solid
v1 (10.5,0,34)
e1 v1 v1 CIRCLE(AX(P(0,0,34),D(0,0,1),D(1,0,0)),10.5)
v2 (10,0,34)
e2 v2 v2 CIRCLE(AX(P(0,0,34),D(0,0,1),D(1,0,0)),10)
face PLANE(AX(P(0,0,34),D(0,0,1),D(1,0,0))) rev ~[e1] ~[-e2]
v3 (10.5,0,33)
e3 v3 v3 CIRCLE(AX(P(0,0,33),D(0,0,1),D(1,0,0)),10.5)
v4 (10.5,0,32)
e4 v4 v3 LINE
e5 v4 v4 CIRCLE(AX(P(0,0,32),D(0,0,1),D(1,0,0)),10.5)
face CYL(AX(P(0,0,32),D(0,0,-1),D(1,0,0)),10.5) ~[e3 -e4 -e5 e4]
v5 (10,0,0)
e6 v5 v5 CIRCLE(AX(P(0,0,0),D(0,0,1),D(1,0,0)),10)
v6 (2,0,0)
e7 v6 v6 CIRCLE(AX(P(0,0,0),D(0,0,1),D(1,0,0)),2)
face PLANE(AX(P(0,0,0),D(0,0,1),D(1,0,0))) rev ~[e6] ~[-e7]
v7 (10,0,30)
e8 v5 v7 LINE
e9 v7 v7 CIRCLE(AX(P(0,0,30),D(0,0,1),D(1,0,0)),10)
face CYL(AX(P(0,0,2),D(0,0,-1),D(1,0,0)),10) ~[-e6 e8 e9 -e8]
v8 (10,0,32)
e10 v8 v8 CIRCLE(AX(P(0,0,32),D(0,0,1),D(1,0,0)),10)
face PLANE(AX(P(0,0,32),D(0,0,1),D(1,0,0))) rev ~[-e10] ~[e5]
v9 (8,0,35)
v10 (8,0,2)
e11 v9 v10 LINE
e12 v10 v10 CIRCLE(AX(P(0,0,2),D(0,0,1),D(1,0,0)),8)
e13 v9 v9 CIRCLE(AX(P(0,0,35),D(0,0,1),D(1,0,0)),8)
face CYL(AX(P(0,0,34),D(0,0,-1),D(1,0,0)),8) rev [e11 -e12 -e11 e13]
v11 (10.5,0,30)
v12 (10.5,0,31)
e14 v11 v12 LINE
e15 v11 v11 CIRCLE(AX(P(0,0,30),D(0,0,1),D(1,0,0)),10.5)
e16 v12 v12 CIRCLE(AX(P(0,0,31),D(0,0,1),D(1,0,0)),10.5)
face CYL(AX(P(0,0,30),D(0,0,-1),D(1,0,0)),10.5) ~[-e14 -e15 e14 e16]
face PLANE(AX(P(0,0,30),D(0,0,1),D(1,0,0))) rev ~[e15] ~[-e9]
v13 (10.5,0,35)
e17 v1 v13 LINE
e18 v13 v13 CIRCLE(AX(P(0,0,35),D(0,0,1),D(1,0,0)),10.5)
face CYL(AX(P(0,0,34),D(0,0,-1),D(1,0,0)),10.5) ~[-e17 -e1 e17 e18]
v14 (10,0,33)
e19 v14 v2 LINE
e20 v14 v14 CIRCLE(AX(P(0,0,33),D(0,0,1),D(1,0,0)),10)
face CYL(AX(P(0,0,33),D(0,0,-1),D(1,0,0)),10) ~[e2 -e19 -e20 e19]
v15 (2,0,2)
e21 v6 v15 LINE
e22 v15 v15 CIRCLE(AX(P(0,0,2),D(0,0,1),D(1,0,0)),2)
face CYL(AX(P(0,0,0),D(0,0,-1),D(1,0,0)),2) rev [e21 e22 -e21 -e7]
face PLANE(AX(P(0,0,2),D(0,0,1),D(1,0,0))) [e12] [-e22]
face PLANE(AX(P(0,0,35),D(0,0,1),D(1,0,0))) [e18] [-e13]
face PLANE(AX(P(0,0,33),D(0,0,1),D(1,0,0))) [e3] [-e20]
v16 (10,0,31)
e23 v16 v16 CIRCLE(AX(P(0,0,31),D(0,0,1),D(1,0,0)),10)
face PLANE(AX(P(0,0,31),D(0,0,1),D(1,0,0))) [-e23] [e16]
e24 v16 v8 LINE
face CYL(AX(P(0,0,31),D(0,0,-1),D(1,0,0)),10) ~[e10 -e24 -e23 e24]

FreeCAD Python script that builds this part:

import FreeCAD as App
import Part
import Sketcher

doc = App.newDocument("Part")
params = doc.addObject("Spreadsheet::Sheet", "Params")
for row, (alias, value) in enumerate([
    ("sketch1_diameter", "20 mm"),
    ("sketch1_diameter2", "4 mm"),
    ("pad1_length", "2 mm"),
    ("sketch2_diameter", "20 mm"),
    ("sketch2_diameter2", "16 mm"),
    ("pad2_length", "28 mm"),
    ("sketch3_diameter", "21 mm"),
    ("sketch3_diameter2", "16 mm"),
    ("pad3_length", "1 mm"),
    ("sketch4_diameter", "20 mm"),
    ("sketch4_diameter2", "16 mm"),
    ("pad4_length", "1 mm"),
    ("sketch5_diameter", "21 mm"),
    ("sketch5_diameter2", "16 mm"),
    ("pad5_length", "1 mm"),
    ("sketch6_diameter", "20 mm"),
    ("sketch6_diameter2", "16 mm"),
    ("pad6_length", "1 mm"),
    ("sketch7_diameter", "21 mm"),
    ("sketch7_diameter2", "16 mm"),
    ("pad7_length", "1 mm"),
], start=1):
    params.set(f"A{row}", alias)
    params.set(f"B{row}", "=" + value)
    params.setAlias(f"B{row}", alias)

body = doc.addObject("PartDesign::Body", "Body")

sketch1 = body.newObject("Sketcher::SketchObject", "Sketch")
sketch1.AttachmentSupport = (doc.getObject("XY_Plane"), [""])
sketch1.MapMode = "FlatFace"
sketch1.addGeometry([
    Part.Circle(App.Vector(0, 0, 0), App.Vector(0, 0, 1), 10),
    Part.Circle(App.Vector(0, 0, 0), App.Vector(0, 0, 1), 2),
], False)
sketch1.addConstraint([
    Sketcher.Constraint("Coincident", 0, 3, -1, 1),
    Sketcher.Constraint("Coincident", 1, 3, -1, 1),
    Sketcher.Constraint("Diameter", 0, 20.0),
    Sketcher.Constraint("Diameter", 1, 4.0),
])
sketch1.setExpression("Constraints[2]", "Params.sketch1_diameter")
sketch1.setExpression("Constraints[3]", "Params.sketch1_diameter2")
pad1 = body.newObject("PartDesign::Pad", "Pad")
pad1.Profile = sketch1
pad1.setExpression("Length", "Params.pad1_length")

sketch2 = body.newObject("Sketcher::SketchObject", "Sketch001")
sketch2.AttachmentSupport = (doc.getObject("XY_Plane"), [""])
sketch2.MapMode = "FlatFace"
sketch2.AttachmentOffset = App.Placement(App.Vector(0, 0, 2), App.Rotation())
sketch2.addGeometry([
    Part.Circle(App.Vector(0, 0, 0), App.Vector(0, 0, 1), 10),
    Part.Circle(App.Vector(0, 0, 0), App.Vector(0, 0, 1), 8),
], False)
sketch2.addConstraint([
    Sketcher.Constraint("Coincident", 0, 3, -1, 1),
    Sketcher.Constraint("Coincident", 1, 3, -1, 1),
    Sketcher.Constraint("Diameter", 0, 20.0),
    Sketcher.Constraint("Diameter", 1, 16.0),
])
sketch2.setExpression("Constraints[2]", "Params.sketch2_diameter")
sketch2.setExpression("Constraints[3]", "Params.sketch2_diameter2")
pad2 = body.newObject("PartDesign::Pad", "Pad001")
pad2.Profile = sketch2
pad2.setExpression("Length", "Params.pad2_length")

sketch3 = body.newObject("Sketcher::SketchObject", "Sketch002")
sketch3.AttachmentSupport = (doc.getObject("XY_Plane"), [""])
sketch3.MapMode = "FlatFace"
sketch3.AttachmentOffset = App.Placement(App.Vector(0, 0, 30), App.Rotation())
sketch3.addGeometry([
    Part.Circle(App.Vector(0, 0, 0), App.Vector(0, 0, 1), 10),
    Part.Circle(App.Vector(0, 0, 0), App.Vector(0, 0, 1), 8),
], False)
sketch3.addConstraint([
    Sketcher.Constraint("Coincident", 0, 3, -1, 1),
    Sketcher.Constraint("Coincident", 1, 3, -1, 1),
    Sketcher.Constraint("Diameter", 0, 21.0),
    Sketcher.Constraint("Diameter", 1, 16.0),
])
sketch3.setExpression("Constraints[2]", "Params.sketch3_diameter")
sketch3.setExpression("Constraints[3]", "Params.sketch3_diameter2")
pad3 = body.newObject("PartDesign::Pad", "Pad002")
pad3.Profile = sketch3
pad3.setExpression("Length", "Params.pad3_length")

sketch4 = body.newObject("Sketcher::SketchObject", "Sketch003")
sketch4.AttachmentSupport = (doc.getObject("XY_Plane"), [""])
sketch4.MapMode = "FlatFace"
sketch4.AttachmentOffset = App.Placement(App.Vector(0, 0, 31), App.Rotation())
sketch4.addGeometry([
    Part.Circle(App.Vector(0, 0, 0), App.Vector(0, 0, 1), 10),
    Part.Circle(App.Vector(0, 0, 0), App.Vector(0, 0, 1), 8),
], False)
sketch4.addConstraint([
    Sketcher.Constraint("Coincident", 0, 3, -1, 1),
    Sketcher.Constraint("Coincident", 1, 3, -1, 1),
    Sketcher.Constraint("Diameter", 0, 20.0),
    Sketcher.Constraint("Diameter", 1, 16.0),
])
sketch4.setExpression("Constraints[2]", "Params.sketch4_diameter")
sketch4.setExpression("Constraints[3]", "Params.sketch4_diameter2")
pad4 = body.newObject("PartDesign::Pad", "Pad003")
pad4.Profile = sketch4
pad4.setExpression("Length", "Params.pad4_length")

sketch5 = body.newObject("Sketcher::SketchObject", "Sketch004")
sketch5.AttachmentSupport = (doc.getObject("XY_Plane"), [""])
sketch5.MapMode = "FlatFace"
sketch5.AttachmentOffset = App.Placement(App.Vector(0, 0, 32), App.Rotation())
sketch5.addGeometry([
    Part.Circle(App.Vector(0, 0, 0), App.Vector(0, 0, 1), 10),
    Part.Circle(App.Vector(0, 0, 0), App.Vector(0, 0, 1), 8),
], False)
sketch5.addConstraint([
    Sketcher.Constraint("Coincident", 0, 3, -1, 1),
    Sketcher.Constraint("Coincident", 1, 3, -1, 1),
    Sketcher.Constraint("Diameter", 0, 21.0),
    Sketcher.Constraint("Diameter", 1, 16.0),
])
sketch5.setExpression("Constraints[2]", "Params.sketch5_diameter")
sketch5.setExpression("Constraints[3]", "Params.sketch5_diameter2")
pad5 = body.newObject("PartDesign::Pad", "Pad004")
pad5.Profile = sketch5
pad5.setExpression("Length", "Params.pad5_length")

sketch6 = body.newObject("Sketcher::SketchObject", "Sketch005")
sketch6.AttachmentSupport = (doc.getObject("XY_Plane"), [""])
sketch6.MapMode = "FlatFace"
sketch6.AttachmentOffset = App.Placement(App.Vector(0, 0, 33), App.Rotation())
sketch6.addGeometry([
    Part.Circle(App.Vector(0, 0, 0), App.Vector(0, 0, 1), 10),
    Part.Circle(App.Vector(0, 0, 0), App.Vector(0, 0, 1), 8),
], False)
sketch6.addConstraint([
    Sketcher.Constraint("Coincident", 0, 3, -1, 1),
    Sketcher.Constraint("Coincident", 1, 3, -1, 1),
    Sketcher.Constraint("Diameter", 0, 20.0),
    Sketcher.Constraint("Diameter", 1, 16.0),
])
sketch6.setExpression("Constraints[2]", "Params.sketch6_diameter")
sketch6.setExpression("Constraints[3]", "Params.sketch6_diameter2")
pad6 = body.newObject("PartDesign::Pad", "Pad005")
pad6.Profile = sketch6
pad6.setExpression("Length", "Params.pad6_length")

sketch7 = body.newObject("Sketcher::SketchObject", "Sketch006")
sketch7.AttachmentSupport = (doc.getObject("XY_Plane"), [""])
sketch7.MapMode = "FlatFace"
sketch7.AttachmentOffset = App.Placement(App.Vector(0, 0, 34), App.Rotation())
sketch7.addGeometry([
    Part.Circle(App.Vector(0, 0, 0), App.Vector(0, 0, 1), 10),
    Part.Circle(App.Vector(0, 0, 0), App.Vector(0, 0, 1), 8),
], False)
sketch7.addConstraint([
    Sketcher.Constraint("Coincident", 0, 3, -1, 1),
    Sketcher.Constraint("Coincident", 1, 3, -1, 1),
    Sketcher.Constraint("Diameter", 0, 21.0),
    Sketcher.Constraint("Diameter", 1, 16.0),
])
sketch7.setExpression("Constraints[2]", "Params.sketch7_diameter")
sketch7.setExpression("Constraints[3]", "Params.sketch7_diameter2")
pad7 = body.newObject("PartDesign::Pad", "Pad006")
pad7.Profile = sketch7
pad7.setExpression("Length", "Params.pad7_length")

doc.recompute()
